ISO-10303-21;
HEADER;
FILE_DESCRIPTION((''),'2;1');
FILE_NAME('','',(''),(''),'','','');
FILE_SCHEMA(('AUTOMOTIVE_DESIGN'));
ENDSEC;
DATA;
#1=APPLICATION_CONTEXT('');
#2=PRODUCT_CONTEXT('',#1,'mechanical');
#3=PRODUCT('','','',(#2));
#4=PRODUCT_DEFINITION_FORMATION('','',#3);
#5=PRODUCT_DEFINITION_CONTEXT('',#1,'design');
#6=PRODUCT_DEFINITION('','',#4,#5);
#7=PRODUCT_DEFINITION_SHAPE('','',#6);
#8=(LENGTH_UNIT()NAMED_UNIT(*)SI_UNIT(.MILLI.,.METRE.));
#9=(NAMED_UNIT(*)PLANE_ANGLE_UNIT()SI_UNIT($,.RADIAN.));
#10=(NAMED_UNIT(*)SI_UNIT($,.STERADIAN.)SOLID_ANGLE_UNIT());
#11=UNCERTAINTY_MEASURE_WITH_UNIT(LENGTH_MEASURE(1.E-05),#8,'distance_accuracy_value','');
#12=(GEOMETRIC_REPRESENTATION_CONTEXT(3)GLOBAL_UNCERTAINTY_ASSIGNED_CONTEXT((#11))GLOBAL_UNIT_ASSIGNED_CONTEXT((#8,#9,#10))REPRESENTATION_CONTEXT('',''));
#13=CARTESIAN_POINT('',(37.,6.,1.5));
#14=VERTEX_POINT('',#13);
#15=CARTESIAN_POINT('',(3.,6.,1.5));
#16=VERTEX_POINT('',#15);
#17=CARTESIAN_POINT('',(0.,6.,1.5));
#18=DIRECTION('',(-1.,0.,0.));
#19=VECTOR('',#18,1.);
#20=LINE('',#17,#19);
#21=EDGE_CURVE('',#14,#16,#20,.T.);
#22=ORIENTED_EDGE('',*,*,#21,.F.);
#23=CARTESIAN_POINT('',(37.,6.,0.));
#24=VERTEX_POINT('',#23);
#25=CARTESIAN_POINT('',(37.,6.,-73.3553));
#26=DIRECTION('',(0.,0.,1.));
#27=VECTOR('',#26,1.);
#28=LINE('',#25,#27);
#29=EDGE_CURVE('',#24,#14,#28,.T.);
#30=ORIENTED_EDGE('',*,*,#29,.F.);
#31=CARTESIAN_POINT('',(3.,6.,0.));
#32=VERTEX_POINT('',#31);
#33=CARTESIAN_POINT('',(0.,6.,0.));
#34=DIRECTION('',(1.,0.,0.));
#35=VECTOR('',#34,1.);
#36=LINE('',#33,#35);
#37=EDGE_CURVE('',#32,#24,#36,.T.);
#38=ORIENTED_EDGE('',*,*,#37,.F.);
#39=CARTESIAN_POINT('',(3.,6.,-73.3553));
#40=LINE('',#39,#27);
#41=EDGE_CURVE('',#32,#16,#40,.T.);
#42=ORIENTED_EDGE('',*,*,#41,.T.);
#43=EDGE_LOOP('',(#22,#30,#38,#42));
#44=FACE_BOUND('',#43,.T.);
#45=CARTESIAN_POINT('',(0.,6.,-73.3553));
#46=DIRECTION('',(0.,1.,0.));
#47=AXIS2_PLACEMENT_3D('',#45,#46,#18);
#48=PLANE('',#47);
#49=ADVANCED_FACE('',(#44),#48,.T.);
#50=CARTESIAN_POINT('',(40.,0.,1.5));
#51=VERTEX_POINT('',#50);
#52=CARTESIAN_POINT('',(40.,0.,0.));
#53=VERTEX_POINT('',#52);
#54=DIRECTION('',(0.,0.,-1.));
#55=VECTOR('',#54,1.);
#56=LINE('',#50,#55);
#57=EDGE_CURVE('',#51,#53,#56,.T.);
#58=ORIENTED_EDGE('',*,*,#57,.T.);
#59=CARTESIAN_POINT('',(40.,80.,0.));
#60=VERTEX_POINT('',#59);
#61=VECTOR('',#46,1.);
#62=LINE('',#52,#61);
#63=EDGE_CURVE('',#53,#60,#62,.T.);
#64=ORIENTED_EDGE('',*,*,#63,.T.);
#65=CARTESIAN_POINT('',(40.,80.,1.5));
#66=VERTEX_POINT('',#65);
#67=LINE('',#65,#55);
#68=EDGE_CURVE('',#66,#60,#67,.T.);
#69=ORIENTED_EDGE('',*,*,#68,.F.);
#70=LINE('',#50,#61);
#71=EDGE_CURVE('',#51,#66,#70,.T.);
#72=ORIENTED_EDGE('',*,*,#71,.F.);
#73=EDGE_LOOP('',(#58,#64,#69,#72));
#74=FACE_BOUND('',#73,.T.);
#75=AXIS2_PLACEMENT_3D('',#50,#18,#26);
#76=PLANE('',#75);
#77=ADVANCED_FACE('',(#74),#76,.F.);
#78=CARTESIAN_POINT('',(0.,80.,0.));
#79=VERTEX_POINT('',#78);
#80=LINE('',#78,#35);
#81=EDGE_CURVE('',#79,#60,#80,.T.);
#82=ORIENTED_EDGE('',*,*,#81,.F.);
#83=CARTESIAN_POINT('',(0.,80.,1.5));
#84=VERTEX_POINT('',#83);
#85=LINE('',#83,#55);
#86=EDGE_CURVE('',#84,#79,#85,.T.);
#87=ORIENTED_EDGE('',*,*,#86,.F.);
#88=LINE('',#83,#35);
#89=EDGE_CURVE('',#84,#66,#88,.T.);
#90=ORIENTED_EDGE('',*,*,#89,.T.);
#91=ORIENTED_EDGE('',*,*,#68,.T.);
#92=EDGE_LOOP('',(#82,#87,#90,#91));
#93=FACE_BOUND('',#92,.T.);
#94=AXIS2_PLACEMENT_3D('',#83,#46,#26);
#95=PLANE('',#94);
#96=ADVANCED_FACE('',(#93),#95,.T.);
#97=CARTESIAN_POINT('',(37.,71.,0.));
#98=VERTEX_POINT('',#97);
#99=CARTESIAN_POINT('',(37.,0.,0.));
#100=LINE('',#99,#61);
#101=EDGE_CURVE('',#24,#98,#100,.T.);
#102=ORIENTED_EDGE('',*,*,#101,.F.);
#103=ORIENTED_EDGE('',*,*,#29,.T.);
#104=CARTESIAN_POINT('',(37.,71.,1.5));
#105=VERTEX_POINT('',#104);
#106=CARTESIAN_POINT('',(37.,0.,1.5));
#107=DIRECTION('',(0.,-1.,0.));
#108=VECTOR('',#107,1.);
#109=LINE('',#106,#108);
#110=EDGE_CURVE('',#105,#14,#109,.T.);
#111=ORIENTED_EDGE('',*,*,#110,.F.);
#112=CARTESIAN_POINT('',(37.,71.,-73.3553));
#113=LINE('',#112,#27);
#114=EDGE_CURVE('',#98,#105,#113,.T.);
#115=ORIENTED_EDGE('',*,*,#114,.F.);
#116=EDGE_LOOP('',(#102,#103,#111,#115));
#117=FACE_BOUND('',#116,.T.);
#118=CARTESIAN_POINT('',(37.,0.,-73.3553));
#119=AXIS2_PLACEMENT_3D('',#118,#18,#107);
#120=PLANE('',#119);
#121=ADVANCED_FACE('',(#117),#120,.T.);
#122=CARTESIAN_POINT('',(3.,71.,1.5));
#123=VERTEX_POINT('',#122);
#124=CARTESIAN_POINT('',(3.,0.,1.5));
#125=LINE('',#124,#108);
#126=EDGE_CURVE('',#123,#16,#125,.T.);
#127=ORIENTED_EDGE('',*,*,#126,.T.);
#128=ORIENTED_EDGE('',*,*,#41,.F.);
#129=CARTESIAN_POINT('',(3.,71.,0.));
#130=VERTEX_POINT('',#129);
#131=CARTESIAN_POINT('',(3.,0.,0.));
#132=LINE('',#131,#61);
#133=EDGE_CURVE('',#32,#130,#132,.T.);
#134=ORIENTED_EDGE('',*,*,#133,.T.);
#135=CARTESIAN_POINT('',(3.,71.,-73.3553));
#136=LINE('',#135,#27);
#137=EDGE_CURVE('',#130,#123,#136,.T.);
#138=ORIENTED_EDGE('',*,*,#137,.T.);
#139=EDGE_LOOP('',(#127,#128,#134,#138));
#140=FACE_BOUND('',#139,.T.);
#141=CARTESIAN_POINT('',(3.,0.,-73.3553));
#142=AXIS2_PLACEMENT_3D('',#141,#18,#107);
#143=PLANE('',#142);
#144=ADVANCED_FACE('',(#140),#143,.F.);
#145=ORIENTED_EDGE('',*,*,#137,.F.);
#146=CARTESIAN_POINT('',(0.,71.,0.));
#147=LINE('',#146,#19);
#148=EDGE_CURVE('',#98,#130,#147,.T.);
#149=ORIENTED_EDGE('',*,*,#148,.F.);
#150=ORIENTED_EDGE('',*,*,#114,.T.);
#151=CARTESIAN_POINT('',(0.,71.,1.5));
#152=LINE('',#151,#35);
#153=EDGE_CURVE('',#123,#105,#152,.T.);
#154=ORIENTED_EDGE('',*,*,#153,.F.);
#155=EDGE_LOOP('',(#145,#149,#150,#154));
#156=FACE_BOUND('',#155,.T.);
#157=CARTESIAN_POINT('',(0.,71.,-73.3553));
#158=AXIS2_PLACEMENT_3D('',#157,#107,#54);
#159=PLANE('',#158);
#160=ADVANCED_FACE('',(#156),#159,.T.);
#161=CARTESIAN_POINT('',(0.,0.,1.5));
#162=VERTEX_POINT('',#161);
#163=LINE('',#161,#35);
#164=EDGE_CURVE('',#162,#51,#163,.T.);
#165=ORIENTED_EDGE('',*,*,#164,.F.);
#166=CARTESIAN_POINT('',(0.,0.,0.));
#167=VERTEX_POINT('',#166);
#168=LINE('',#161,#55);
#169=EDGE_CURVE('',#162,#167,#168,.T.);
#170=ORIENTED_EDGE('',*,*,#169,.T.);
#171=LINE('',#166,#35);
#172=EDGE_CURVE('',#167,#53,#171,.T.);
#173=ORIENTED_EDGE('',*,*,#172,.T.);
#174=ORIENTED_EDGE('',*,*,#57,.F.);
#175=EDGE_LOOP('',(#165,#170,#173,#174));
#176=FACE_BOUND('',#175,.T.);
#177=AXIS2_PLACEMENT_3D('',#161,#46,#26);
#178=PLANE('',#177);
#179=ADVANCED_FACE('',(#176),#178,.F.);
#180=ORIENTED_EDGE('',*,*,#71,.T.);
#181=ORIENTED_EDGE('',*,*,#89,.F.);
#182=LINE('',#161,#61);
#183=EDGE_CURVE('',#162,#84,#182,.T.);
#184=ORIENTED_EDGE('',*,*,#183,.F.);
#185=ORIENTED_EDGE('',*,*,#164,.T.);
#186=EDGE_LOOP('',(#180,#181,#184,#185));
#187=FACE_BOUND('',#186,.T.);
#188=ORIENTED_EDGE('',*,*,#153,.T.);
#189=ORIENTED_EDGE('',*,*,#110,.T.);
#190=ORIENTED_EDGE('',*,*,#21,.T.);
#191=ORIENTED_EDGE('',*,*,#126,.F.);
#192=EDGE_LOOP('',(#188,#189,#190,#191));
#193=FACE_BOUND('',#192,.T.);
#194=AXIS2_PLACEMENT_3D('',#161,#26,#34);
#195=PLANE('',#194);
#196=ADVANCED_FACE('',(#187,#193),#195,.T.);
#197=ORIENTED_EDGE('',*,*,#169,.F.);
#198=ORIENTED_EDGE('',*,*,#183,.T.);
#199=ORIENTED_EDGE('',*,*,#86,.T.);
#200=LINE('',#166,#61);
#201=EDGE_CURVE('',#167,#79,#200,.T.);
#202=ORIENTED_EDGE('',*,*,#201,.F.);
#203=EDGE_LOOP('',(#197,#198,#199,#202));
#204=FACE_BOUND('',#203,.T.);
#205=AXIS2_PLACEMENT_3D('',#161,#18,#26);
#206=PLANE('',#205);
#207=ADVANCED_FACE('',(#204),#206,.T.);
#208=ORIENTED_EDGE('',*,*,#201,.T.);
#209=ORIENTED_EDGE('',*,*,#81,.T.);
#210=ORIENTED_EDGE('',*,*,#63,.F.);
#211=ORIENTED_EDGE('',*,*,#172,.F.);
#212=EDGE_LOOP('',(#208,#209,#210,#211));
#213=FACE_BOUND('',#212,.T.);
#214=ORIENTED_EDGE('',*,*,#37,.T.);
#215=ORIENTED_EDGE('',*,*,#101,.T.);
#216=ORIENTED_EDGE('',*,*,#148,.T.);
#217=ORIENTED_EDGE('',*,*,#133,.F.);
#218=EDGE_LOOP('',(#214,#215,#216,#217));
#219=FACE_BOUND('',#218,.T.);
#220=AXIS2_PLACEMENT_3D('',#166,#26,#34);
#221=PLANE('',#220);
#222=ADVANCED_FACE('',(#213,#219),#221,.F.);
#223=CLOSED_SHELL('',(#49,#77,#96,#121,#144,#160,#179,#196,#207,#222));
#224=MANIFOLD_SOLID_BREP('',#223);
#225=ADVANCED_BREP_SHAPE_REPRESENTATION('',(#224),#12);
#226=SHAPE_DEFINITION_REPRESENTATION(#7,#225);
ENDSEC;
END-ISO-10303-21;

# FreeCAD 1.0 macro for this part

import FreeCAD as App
import Part
import Sketcher
from FreeCAD import Vector

doc = App.newDocument("Part")
body = doc.addObject("PartDesign::Body", "Body")

# Sketch on XY plane
sketch1 = body.newObject("Sketcher::SketchObject", "Sketch")
sketch1.AttachmentSupport = (doc.getObject("XY_Plane"), [""])
sketch1.MapMode = "FlatFace"
sketch1.addGeometry(Part.LineSegment(Vector(0, 80, 0), Vector(0, 0, 0)), False)
sketch1.addGeometry(Part.LineSegment(Vector(0, 0, 0), Vector(40, 0, 0)), False)
sketch1.addGeometry(Part.LineSegment(Vector(40, 0, 0), Vector(40, 80, 0)), False)
sketch1.addGeometry(Part.LineSegment(Vector(40, 80, 0), Vector(0, 80, 0)), False)
sketch1.addConstraint(Sketcher.Constraint("Coincident", 0, 2, 1, 1))
sketch1.addConstraint(Sketcher.Constraint("Coincident", 1, 2, 2, 1))
sketch1.addConstraint(Sketcher.Constraint("Coincident", 2, 2, 3, 1))
sketch1.addConstraint(Sketcher.Constraint("Coincident", 3, 2, 0, 1))
sketch1.addConstraint(Sketcher.Constraint("Vertical", 0))
sketch1.addConstraint(Sketcher.Constraint("Horizontal", 1))
sketch1.addConstraint(Sketcher.Constraint("Vertical", 2))
sketch1.addConstraint(Sketcher.Constraint("Horizontal", 3))
sketch1.addConstraint(Sketcher.Constraint("Coincident", 0, 2, -1, 1))
sketch1.addConstraint(Sketcher.Constraint("DistanceX", 1, 1, 1, 2, 40.0))
sketch1.addConstraint(Sketcher.Constraint("DistanceY", 0, 2, 0, 1, 80.0))
pad1 = body.newObject("PartDesign::Pad", "Pad")
pad1.Profile = sketch1
pad1.Length = 1.5

# Sketch on XY plane
sketch2 = body.newObject("Sketcher::SketchObject", "Sketch001")
sketch2.AttachmentSupport = (doc.getObject("XY_Plane"), [""])
sketch2.MapMode = "FlatFace"
sketch2.AttachmentOffset = App.Placement(Vector(0, 0, 1.5), App.Rotation())
sketch2.addGeometry(Part.LineSegment(Vector(37, 6, 0), Vector(37, 71, 0)), False)
sketch2.addGeometry(Part.LineSegment(Vector(37, 71, 0), Vector(3, 71, 0)), False)
sketch2.addGeometry(Part.LineSegment(Vector(3, 71, 0), Vector(3, 6, 0)), False)
sketch2.addGeometry(Part.LineSegment(Vector(3, 6, 0), Vector(37, 6, 0)), False)
sketch2.addConstraint(Sketcher.Constraint("Coincident", 0, 2, 1, 1))
sketch2.addConstraint(Sketcher.Constraint("Coincident", 1, 2, 2, 1))
sketch2.addConstraint(Sketcher.Constraint("Coincident", 2, 2, 3, 1))
sketch2.addConstraint(Sketcher.Constraint("Coincident", 3, 2, 0, 1))
sketch2.addConstraint(Sketcher.Constraint("Vertical", 0))
sketch2.addConstraint(Sketcher.Constraint("Horizontal", 1))
sketch2.addConstraint(Sketcher.Constraint("Vertical", 2))
sketch2.addConstraint(Sketcher.Constraint("Horizontal", 3))
sketch2.addConstraint(Sketcher.Constraint("DistanceX", 1, 2, 1, 1, 34.0))
sketch2.addConstraint(Sketcher.Constraint("DistanceY", 0, 1, 0, 2, 65.0))
sketch2.addConstraint(Sketcher.Constraint("DistanceX", -1, 1, 0, 2, 37.0))
sketch2.addConstraint(Sketcher.Constraint("DistanceY", -1, 1, 0, 2, 71.0))
pocket1 = body.newObject("PartDesign::Pocket", "Pocket")
pocket1.Profile = sketch2
pocket1.Length = 1.5

doc.recompute()
